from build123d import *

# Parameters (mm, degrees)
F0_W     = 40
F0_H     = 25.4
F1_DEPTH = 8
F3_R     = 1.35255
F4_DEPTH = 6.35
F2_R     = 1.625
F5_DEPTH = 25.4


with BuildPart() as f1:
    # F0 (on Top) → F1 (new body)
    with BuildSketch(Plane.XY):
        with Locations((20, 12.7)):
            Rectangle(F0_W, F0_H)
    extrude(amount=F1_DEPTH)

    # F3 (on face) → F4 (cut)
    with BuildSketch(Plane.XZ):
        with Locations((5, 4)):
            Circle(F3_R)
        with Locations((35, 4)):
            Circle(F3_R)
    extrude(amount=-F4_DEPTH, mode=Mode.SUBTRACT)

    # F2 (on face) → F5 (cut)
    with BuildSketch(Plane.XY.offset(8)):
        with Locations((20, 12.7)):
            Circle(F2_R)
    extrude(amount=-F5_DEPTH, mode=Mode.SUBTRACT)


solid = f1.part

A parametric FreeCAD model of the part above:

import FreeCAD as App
import Part
import Sketcher

V = App.Vector
Q = App.Units.Quantity


def add_polygon(sketch, points):
    """Adds a closed chain of lines whose ends are joined by coincident constraints."""
    first, n = sketch.GeometryCount, len(points)
    for a, b in zip(points, points[1:] + points[:1]):
        sketch.addGeometry(Part.LineSegment(App.Vector(*a, 0), App.Vector(*b, 0)), False)
    for i in range(n):
        sketch.addConstraint(Sketcher.Constraint("Coincident", first + i, 2, first + (i + 1) % n, 1))

doc = App.newDocument("Part")
body = doc.addObject("PartDesign::Body", "Body")

# Sketch on XY plane
sketch1 = body.newObject("Sketcher::SketchObject", "Sketch")
sketch1.AttachmentSupport = (doc.getObject("XY_Plane"), [""])
sketch1.MapMode = "FlatFace"
add_polygon(sketch1, [(0, 25.4), (0, 0), (40, 0), (40, 25.4)])  # lines 0-3
sketch1.addConstraint(Sketcher.Constraint("Vertical", 0))
sketch1.addConstraint(Sketcher.Constraint("Horizontal", 1))
sketch1.addConstraint(Sketcher.Constraint("Vertical", 2))
sketch1.addConstraint(Sketcher.Constraint("Horizontal", 3))
sketch1.addConstraint(Sketcher.Constraint("Coincident", 0, 2, -1, 1))
sketch1.addConstraint(Sketcher.Constraint("DistanceX", 1, 1, 1, 2, Q("40 mm")))
sketch1.addConstraint(Sketcher.Constraint("DistanceY", 0, 2, 0, 1, Q("25.4 mm")))
pad1 = body.newObject("PartDesign::Pad", "Pad")
pad1.Profile = sketch1
pad1.Length = 8

# Sketch on XZ plane
sketch2 = body.newObject("Sketcher::SketchObject", "Sketch001")
sketch2.AttachmentSupport = (doc.getObject("XZ_Plane"), [""])
sketch2.MapMode = "FlatFace"
sketch2.addGeometry(Part.Circle(V(5, 4, 0), V(0, 0, 1), 1.35255), False)
sketch2.addGeometry(Part.Circle(V(35, 4, 0), V(0, 0, 1), 1.35255), False)
sketch2.addConstraint(Sketcher.Constraint("Equal", 0, 1))
sketch2.addConstraint(Sketcher.Constraint("Horizontal", 0, 3, 1, 3))
sketch2.addConstraint(Sketcher.Constraint("DistanceX", -1, 1, 0, 3, Q("5 mm")))
sketch2.addConstraint(Sketcher.Constraint("DistanceY", -1, 1, 0, 3, Q("4 mm")))
sketch2.addConstraint(Sketcher.Constraint("DistanceX", -1, 1, 1, 3, Q("35 mm")))
sketch2.addConstraint(Sketcher.Constraint("Diameter", 0, Q("2.7051 mm")))
pocket1 = body.newObject("PartDesign::Pocket", "Pocket")
pocket1.Profile = sketch2
pocket1.Length = 6.35

# Sketch on XY plane
sketch3 = body.newObject("Sketcher::SketchObject", "Sketch002")
sketch3.AttachmentSupport = (doc.getObject("XY_Plane"), [""])
sketch3.MapMode = "FlatFace"
sketch3.AttachmentOffset = App.Placement(V(0, 0, 8), App.Rotation())
sketch3.addGeometry(Part.Circle(V(20, 12.7, 0), V(0, 0, 1), 1.625), False)
sketch3.addConstraint(Sketcher.Constraint("Diameter", 0, Q("3.25 mm")))
sketch3.addConstraint(Sketcher.Constraint("DistanceX", -1, 1, 0, 3, Q("20 mm")))
sketch3.addConstraint(Sketcher.Constraint("DistanceY", -1, 1, 0, 3, Q("12.7 mm")))
pocket2 = body.newObject("PartDesign::Pocket", "Pocket001")
pocket2.Profile = sketch3
pocket2.Length = 25.4

doc.recompute()
